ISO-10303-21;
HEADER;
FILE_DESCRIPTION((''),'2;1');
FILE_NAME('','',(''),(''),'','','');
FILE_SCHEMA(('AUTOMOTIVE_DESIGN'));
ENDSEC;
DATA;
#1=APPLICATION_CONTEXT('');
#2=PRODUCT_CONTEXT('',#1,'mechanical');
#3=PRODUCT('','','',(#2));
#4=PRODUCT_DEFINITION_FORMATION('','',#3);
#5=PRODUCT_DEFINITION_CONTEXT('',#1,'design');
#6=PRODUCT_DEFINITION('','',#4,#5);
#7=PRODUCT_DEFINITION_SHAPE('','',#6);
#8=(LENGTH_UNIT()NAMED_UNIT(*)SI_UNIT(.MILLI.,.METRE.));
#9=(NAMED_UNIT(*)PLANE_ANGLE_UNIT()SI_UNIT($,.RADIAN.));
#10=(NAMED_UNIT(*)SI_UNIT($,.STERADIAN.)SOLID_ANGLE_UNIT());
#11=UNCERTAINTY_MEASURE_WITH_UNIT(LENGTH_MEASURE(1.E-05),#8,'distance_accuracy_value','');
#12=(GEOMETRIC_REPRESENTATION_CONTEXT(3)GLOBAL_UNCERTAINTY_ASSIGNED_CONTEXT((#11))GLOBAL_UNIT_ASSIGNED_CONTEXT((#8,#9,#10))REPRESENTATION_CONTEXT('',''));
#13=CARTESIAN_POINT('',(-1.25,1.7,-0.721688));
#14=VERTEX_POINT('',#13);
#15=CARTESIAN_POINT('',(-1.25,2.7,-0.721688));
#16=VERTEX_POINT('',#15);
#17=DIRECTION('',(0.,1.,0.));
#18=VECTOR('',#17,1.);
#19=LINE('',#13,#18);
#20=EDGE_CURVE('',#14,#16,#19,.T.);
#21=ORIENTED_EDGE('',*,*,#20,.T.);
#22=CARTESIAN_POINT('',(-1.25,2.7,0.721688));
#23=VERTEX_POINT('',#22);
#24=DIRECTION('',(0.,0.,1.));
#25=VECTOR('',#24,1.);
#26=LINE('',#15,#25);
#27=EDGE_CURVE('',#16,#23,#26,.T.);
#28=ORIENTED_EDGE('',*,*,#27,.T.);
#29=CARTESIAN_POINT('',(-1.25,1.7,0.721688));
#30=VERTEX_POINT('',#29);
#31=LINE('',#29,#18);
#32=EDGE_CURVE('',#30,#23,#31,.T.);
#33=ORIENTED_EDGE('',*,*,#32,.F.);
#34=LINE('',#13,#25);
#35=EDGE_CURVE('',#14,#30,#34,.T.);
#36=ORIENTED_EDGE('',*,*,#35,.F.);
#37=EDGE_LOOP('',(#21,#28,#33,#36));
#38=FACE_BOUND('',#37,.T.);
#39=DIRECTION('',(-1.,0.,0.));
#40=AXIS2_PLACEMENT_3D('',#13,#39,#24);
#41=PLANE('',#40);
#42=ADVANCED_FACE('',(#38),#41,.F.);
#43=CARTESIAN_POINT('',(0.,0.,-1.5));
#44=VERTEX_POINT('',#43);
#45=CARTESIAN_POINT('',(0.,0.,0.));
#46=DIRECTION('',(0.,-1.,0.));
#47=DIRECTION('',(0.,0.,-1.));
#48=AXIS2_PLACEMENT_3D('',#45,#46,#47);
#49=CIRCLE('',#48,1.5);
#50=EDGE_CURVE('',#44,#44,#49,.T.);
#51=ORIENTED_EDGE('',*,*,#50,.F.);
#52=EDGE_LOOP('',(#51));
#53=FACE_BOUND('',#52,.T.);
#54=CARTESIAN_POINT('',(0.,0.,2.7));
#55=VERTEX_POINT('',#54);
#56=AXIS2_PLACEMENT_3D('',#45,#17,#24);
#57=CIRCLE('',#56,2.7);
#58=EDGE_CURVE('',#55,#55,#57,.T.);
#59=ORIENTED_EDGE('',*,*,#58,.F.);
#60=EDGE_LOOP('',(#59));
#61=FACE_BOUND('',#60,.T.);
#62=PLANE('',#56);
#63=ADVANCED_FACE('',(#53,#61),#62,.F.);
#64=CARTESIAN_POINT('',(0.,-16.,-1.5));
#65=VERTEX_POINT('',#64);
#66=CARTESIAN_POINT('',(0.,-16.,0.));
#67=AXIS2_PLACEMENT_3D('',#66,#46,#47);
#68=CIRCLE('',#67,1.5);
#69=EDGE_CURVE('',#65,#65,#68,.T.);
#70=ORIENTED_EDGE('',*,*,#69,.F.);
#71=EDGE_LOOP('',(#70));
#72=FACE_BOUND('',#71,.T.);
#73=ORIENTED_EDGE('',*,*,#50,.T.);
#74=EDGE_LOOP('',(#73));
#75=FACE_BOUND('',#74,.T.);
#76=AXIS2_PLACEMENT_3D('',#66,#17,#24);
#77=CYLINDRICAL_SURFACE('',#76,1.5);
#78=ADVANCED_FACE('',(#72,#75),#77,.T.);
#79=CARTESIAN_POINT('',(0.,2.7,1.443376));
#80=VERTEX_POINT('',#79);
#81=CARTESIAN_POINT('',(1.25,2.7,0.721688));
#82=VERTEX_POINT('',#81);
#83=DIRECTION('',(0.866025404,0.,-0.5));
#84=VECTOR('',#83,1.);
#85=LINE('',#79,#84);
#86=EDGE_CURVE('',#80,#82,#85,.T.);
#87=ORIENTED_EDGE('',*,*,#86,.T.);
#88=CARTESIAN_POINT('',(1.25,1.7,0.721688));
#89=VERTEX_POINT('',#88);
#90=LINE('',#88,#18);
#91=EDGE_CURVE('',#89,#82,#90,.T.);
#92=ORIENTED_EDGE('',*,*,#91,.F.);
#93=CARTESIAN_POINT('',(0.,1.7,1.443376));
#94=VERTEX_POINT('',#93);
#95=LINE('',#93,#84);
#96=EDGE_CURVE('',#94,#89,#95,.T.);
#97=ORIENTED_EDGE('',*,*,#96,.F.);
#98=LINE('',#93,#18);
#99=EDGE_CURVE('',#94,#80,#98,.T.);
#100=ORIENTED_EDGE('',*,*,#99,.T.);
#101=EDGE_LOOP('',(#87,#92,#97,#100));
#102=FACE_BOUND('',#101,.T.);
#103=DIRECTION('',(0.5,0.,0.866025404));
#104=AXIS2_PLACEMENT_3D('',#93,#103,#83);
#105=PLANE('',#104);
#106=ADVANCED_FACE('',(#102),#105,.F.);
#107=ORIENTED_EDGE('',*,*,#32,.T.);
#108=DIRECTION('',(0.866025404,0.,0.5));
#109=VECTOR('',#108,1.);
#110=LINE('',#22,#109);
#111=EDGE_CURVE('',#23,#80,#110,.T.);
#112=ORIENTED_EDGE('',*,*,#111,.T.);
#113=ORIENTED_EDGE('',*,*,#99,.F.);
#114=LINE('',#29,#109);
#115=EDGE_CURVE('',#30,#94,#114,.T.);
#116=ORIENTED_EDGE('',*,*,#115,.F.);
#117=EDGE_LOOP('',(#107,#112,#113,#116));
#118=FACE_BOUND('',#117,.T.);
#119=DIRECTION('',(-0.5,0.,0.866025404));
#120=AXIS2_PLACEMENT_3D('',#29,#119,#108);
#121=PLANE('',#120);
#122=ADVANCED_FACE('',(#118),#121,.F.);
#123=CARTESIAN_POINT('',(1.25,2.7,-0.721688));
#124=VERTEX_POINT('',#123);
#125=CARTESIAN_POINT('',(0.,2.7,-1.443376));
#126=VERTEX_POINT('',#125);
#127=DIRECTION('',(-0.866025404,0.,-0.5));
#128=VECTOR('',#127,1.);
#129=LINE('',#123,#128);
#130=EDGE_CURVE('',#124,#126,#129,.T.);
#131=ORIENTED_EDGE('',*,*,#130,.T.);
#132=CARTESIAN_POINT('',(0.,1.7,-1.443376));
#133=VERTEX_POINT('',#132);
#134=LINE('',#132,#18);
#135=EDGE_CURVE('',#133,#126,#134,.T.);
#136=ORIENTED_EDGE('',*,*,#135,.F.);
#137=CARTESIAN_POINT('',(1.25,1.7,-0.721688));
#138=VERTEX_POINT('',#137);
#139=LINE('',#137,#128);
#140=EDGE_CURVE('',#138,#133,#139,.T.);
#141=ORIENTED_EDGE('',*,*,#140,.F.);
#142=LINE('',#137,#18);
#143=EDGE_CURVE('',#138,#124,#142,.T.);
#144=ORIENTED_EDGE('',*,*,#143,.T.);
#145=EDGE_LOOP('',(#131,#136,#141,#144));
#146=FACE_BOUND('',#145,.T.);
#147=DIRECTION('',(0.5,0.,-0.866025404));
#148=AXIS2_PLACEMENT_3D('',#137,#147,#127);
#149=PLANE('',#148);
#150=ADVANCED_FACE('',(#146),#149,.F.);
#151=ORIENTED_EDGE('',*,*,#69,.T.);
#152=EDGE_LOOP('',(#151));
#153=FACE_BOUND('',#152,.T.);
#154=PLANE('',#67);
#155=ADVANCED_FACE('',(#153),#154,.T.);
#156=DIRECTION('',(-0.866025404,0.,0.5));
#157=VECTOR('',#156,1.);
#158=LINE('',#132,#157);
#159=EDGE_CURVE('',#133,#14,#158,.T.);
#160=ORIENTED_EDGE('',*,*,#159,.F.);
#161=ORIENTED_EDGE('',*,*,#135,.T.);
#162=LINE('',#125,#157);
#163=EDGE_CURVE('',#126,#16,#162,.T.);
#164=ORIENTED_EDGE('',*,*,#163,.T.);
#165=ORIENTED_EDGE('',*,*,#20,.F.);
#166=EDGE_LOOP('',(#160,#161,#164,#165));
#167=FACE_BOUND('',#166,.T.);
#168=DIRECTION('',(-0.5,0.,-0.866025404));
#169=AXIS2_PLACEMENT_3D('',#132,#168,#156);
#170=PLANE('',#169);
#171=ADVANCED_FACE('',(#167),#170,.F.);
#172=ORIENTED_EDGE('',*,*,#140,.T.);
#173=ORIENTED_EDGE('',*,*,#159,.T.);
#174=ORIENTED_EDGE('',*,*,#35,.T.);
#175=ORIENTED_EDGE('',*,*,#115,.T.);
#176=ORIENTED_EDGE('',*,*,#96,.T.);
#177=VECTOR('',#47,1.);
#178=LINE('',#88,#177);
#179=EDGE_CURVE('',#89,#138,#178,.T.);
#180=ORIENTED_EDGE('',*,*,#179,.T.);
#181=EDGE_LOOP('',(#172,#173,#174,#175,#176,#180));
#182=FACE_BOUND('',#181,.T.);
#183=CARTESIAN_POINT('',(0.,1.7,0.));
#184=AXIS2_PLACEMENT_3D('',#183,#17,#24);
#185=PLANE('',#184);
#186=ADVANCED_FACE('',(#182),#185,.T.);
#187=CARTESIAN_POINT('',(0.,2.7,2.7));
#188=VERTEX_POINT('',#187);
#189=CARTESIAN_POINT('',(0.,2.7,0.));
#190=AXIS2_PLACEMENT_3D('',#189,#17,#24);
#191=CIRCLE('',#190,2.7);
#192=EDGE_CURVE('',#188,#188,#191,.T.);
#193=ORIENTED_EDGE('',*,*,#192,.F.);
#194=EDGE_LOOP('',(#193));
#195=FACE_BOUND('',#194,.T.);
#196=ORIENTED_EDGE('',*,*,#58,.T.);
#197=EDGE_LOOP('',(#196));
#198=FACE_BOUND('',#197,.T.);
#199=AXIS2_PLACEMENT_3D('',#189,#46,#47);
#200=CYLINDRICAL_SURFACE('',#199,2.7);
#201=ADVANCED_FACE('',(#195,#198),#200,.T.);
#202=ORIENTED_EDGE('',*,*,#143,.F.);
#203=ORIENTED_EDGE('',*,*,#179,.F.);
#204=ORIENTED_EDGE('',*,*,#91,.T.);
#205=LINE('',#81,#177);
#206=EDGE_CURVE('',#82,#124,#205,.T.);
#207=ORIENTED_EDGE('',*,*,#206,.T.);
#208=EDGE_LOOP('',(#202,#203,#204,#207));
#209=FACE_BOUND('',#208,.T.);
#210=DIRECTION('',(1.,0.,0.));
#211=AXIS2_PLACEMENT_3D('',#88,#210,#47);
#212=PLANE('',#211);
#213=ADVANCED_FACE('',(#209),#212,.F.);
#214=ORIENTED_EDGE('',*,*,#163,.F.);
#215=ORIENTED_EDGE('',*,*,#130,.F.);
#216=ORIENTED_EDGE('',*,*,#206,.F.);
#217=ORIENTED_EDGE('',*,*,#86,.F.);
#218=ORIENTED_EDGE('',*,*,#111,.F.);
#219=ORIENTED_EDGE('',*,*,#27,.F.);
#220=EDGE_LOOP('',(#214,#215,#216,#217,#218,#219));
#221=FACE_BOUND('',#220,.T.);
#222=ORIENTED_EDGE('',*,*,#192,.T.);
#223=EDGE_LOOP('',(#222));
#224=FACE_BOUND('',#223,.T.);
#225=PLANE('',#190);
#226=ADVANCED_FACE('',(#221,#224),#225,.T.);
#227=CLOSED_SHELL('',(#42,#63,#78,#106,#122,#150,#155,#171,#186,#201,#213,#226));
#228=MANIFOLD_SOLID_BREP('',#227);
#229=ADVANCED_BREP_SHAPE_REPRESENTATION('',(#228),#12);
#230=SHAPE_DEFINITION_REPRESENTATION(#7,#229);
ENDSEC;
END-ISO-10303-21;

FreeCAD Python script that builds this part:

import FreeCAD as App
import Part
import Sketcher

V = App.Vector
Q = App.Units.Quantity


def add_polygon(sketch, points):
    """Adds a closed chain of lines whose ends are joined by coincident constraints."""
    first, n = sketch.GeometryCount, len(points)
    for a, b in zip(points, points[1:] + points[:1]):
        sketch.addGeometry(Part.LineSegment(App.Vector(*a, 0), App.Vector(*b, 0)), False)
    for i in range(n):
        sketch.addConstraint(Sketcher.Constraint("Coincident", first + i, 2, first + (i + 1) % n, 1))

doc = App.newDocument("Part")
body = doc.addObject("PartDesign::Body", "Body")

sketch1 = doc.addObject("Sketcher::SketchObject", "Sketch")
body.addObject(sketch1)
sketch1.AttachmentSupport = (doc.XZ_Plane, [""])
sketch1.MapMode = "FlatFace"
sketch1.addGeometry(Part.Circle(V(0, 0, 0), V(0, 0, 1), 2.7), False)
sketch1.addConstraint([
    Sketcher.Constraint("Coincident", 0, 3, -1, 1),
    Sketcher.Constraint("Diameter", 0, Q("5.4 mm")),
])
pad1 = doc.addObject("PartDesign::Pad", "Pad")
body.addObject(pad1)
pad1.Profile = sketch1
pad1.Length = 2.7
pad1.Reversed = True

sketch2 = doc.addObject("Sketcher::SketchObject", "Sketch001")
body.addObject(sketch2)
sketch2.AttachmentSupport = (doc.XZ_Plane, [""])
sketch2.MapMode = "FlatFace"
sketch2.AttachmentOffset = App.Placement(V(0, 0, -2.7), App.Rotation())
add_polygon(sketch2, [(0, -1.4), (-1.2, -0.7), (-1.2, 0.7), (0, 1.4), (1.2, 0.7), (1.2, -0.7)])
sketch2.addConstraint([
    Sketcher.Constraint("Vertical", 1),
    Sketcher.Constraint("Vertical", 4),
    Sketcher.Constraint("Symmetric", 0, 2, 3, 2, -1, 1),
    Sketcher.Constraint("Symmetric", 2, 2, 5, 2, -1, 1),
    Sketcher.Constraint("PointOnObject", 2, 2, -2),
    Sketcher.Constraint("Parallel", 2, 5),
    Sketcher.Constraint("Horizontal", 1, 2, 3, 2),
    Sketcher.Constraint("Angle", 0, Q("150 deg")),
    Sketcher.Constraint("DistanceX", 1, 2, 3, 2, Q("2.5 mm")),
    Sketcher.Constraint("DistanceY", 1, 1, 1, 2, Q("1.443376 mm")),
])
pocket1 = doc.addObject("PartDesign::Pocket", "Pocket")
body.addObject(pocket1)
pocket1.Profile = sketch2
pocket1.Length = 1
pocket1.Reversed = True

sketch3 = doc.addObject("Sketcher::SketchObject", "Sketch002")
body.addObject(sketch3)
sketch3.AttachmentSupport = (doc.XZ_Plane, [""])
sketch3.MapMode = "FlatFace"
sketch3.addGeometry(Part.Circle(V(0, 0, 0), V(0, 0, 1), 1.5), False)
sketch3.addConstraint([
    Sketcher.Constraint("Coincident", 0, 3, -1, 1),
    Sketcher.Constraint("Diameter", 0, Q("3 mm")),
])
pad2 = doc.addObject("PartDesign::Pad", "Pad001")
body.addObject(pad2)
pad2.Profile = sketch3
pad2.Length = 16

doc.recompute()
